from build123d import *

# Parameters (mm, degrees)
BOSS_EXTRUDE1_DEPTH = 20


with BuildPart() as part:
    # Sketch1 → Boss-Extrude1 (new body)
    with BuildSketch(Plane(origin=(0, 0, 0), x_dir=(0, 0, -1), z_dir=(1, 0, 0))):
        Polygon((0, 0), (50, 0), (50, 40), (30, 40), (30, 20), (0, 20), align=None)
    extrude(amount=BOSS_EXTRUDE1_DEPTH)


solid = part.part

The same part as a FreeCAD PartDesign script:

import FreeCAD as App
import Part
import Sketcher

V = App.Vector
Q = App.Units.Quantity


def add_polygon(sketch, points):
    """Adds a closed chain of lines whose ends are joined by coincident constraints."""
    first, n = sketch.GeometryCount, len(points)
    for a, b in zip(points, points[1:] + points[:1]):
        sketch.addGeometry(Part.LineSegment(App.Vector(*a, 0), App.Vector(*b, 0)), False)
    for i in range(n):
        sketch.addConstraint(Sketcher.Constraint("Coincident", first + i, 2, first + (i + 1) % n, 1))

doc = App.newDocument("Part")
body = doc.addObject("PartDesign::Body", "Body")

# Sketch on YZ plane
sketch1 = doc.addObject("Sketcher::SketchObject", "Sketch")
body.addObject(sketch1)
sketch1.AttachmentSupport = (doc.YZ_Plane, [""])
sketch1.MapMode = "FlatFace"
add_polygon(sketch1, [(0, 0), (0, -50), (40, -50), (40, -30), (20, -30), (20, 0)])  # lines 0-5
sketch1.addConstraint(Sketcher.Constraint("Vertical", 0))
sketch1.addConstraint(Sketcher.Constraint("Horizontal", 1))
sketch1.addConstraint(Sketcher.Constraint("Vertical", 2))
sketch1.addConstraint(Sketcher.Constraint("Horizontal", 3))
sketch1.addConstraint(Sketcher.Constraint("Vertical", 4))
sketch1.addConstraint(Sketcher.Constraint("Horizontal", 5))
sketch1.addConstraint(Sketcher.Constraint("Coincident", 5, 2, -1, 1))
sketch1.addConstraint(Sketcher.Constraint("Equal", 3, 5))
sketch1.addConstraint(Sketcher.Constraint("Equal", 5, 2))
sketch1.addConstraint(Sketcher.Constraint("DistanceX", 1, 1, 1, 2, Q("40 mm")))
sketch1.addConstraint(Sketcher.Constraint("DistanceY", 0, 2, 0, 1, Q("50 mm")))
pad1 = doc.addObject("PartDesign::Pad", "Pad")
body.addObject(pad1)
pad1.Profile = sketch1
pad1.Length = 20

doc.recompute()
